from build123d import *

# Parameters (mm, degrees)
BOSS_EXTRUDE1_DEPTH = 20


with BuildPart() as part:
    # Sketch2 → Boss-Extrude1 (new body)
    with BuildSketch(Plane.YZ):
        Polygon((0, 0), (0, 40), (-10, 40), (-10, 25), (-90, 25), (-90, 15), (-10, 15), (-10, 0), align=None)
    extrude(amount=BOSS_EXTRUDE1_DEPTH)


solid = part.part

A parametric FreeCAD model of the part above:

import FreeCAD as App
import Part
import Sketcher

V = App.Vector
Q = App.Units.Quantity


def add_polygon(sketch, points):
    """Adds a closed chain of lines whose ends are joined by coincident constraints."""
    first, n = sketch.GeometryCount, len(points)
    for a, b in zip(points, points[1:] + points[:1]):
        sketch.addGeometry(Part.LineSegment(App.Vector(*a, 0), App.Vector(*b, 0)), False)
    for i in range(n):
        sketch.addConstraint(Sketcher.Constraint("Coincident", first + i, 2, first + (i + 1) % n, 1))

doc = App.newDocument("Part")
body = doc.addObject("PartDesign::Body", "Body")

# Sketch on YZ plane
sketch1 = body.newObject("Sketcher::SketchObject", "Sketch")
sketch1.AttachmentSupport = (doc.getObject("YZ_Plane"), [""])
sketch1.MapMode = "FlatFace"
add_polygon(sketch1, [(0, 0), (0, 40), (-10, 40), (-10, 25), (-90, 25), (-90, 15), (-10, 15), (-10, 0)])  # lines 0-7
sketch1.addConstraint([
    Sketcher.Constraint("Vertical", 0),
    Sketcher.Constraint("Horizontal", 1),
    Sketcher.Constraint("Vertical", 2),
    Sketcher.Constraint("Horizontal", 3),
    Sketcher.Constraint("Vertical", 4),
    Sketcher.Constraint("Horizontal", 5),
    Sketcher.Constraint("Vertical", 6),
    Sketcher.Constraint("Horizontal", 7),
    Sketcher.Constraint("Coincident", 7, 2, -1, 1),
    Sketcher.Constraint("Vertical", 2, 2, 5, 2),
    Sketcher.Constraint("Equal", 7, 4),
    Sketcher.Constraint("Equal", 2, 6),
    Sketcher.Constraint("DistanceX", 1, 2, 1, 1, Q("10 mm")),
    Sketcher.Constraint("DistanceX", 3, 2, 3, 1, Q("80 mm")),
    Sketcher.Constraint("DistanceY", 0, 1, 0, 2, Q("40 mm")),
])
pad1 = body.newObject("PartDesign::Pad", "Pad")
pad1.Profile = sketch1
pad1.Length = 20

doc.recompute()
